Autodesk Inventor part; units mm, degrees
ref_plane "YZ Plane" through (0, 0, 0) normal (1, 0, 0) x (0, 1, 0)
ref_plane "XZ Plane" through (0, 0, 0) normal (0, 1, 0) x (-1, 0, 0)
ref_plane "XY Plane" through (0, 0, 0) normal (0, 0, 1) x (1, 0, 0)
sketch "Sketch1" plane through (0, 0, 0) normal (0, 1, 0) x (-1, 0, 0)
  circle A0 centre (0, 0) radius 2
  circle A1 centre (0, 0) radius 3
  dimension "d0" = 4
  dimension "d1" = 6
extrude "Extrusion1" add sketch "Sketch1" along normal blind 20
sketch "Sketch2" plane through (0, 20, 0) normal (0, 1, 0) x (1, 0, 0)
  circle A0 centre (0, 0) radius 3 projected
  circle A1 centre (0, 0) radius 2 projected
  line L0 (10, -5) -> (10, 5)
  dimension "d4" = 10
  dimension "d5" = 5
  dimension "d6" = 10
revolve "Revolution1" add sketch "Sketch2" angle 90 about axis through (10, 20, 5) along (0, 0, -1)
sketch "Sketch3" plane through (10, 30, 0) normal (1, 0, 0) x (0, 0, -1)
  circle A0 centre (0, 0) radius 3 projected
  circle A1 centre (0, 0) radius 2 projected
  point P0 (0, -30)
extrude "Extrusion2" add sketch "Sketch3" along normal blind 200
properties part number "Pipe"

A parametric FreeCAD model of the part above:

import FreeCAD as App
import Part
import Sketcher
from FreeCAD import Vector
Q = App.Units.Quantity

doc = App.newDocument("Part")
body = doc.addObject("PartDesign::Body", "Body")

sketch1 = body.newObject("Sketcher::SketchObject", "Sketch")
sketch1.AttachmentSupport = (doc.getObject("XZ_Plane"), [""])
sketch1.MapMode = "FlatFace"
sketch1.addGeometry(Part.Circle(Vector(0, 0, 0), Vector(0, 0, 1), 3), False)
sketch1.addGeometry(Part.Circle(Vector(0, 0, 0), Vector(0, 0, 1), 2), False)
sketch1.addConstraint(Sketcher.Constraint("Coincident", 0, 3, -1, 1))
sketch1.addConstraint(Sketcher.Constraint("Coincident", 1, 3, -1, 1))
sketch1.addConstraint(Sketcher.Constraint("Diameter", 0, Q("6 mm")))
sketch1.addConstraint(Sketcher.Constraint("Diameter", 1, Q("4 mm")))
pad1 = body.newObject("PartDesign::Pad", "Pad")
pad1.Profile = sketch1
pad1.Length = 20
pad1.Reversed = True

sketch2 = body.newObject("Sketcher::SketchObject", "Sketch001")
sketch2.AttachmentSupport = (doc.getObject("XZ_Plane"), [""])
sketch2.MapMode = "FlatFace"
sketch2.AttachmentOffset = App.Placement(Vector(0, 0, -20), App.Rotation())
sketch2.addGeometry(Part.Circle(Vector(0, 0, 0), Vector(0, 0, 1), 3), False)
sketch2.addGeometry(Part.Circle(Vector(0, 0, 0), Vector(0, 0, 1), 2), False)
sketch2.addGeometry(Part.LineSegment(Vector(10, 0, 0), Vector(10, -10, 0)), True)
sketch2.addConstraint(Sketcher.Constraint("Vertical", 2))
sketch2.addConstraint(Sketcher.Constraint("Coincident", 0, 3, -1, 1))
sketch2.addConstraint(Sketcher.Constraint("Coincident", 1, 3, -1, 1))
sketch2.addConstraint(Sketcher.Constraint("PointOnObject", 2, 1, -1))
sketch2.addConstraint(Sketcher.Constraint("DistanceY", 2, 2, 2, 1, Q("10 mm")))
sketch2.addConstraint(Sketcher.Constraint("Diameter", 0, Q("6 mm")))
sketch2.addConstraint(Sketcher.Constraint("Diameter", 1, Q("4 mm")))
sketch2.addConstraint(Sketcher.Constraint("DistanceX", -1, 1, 2, 1, Q("10 mm")))
revolution = body.newObject("PartDesign::Revolution", "Revolution")
revolution.Profile = sketch2
revolution.ReferenceAxis = (sketch2, ["Axis0"])
revolution.Angle = 90

sketch3 = body.newObject("Sketcher::SketchObject", "Sketch002")
sketch3.AttachmentSupport = (doc.getObject("YZ_Plane"), [""])
sketch3.MapMode = "FlatFace"
sketch3.AttachmentOffset = App.Placement(Vector(0, 0, 10), App.Rotation())
sketch3.addGeometry(Part.Circle(Vector(30, 0, 0), Vector(0, 0, 1), 3), False)
sketch3.addGeometry(Part.Circle(Vector(30, 0, 0), Vector(0, 0, 1), 2), False)
sketch3.addConstraint(Sketcher.Constraint("Coincident", 1, 3, 0, 3))
sketch3.addConstraint(Sketcher.Constraint("PointOnObject", 0, 3, -1))
sketch3.addConstraint(Sketcher.Constraint("Diameter", 0, Q("6 mm")))
sketch3.addConstraint(Sketcher.Constraint("Diameter", 1, Q("4 mm")))
sketch3.addConstraint(Sketcher.Constraint("DistanceX", -1, 1, 0, 3, Q("30 mm")))
pad2 = body.newObject("PartDesign::Pad", "Pad001")
pad2.Profile = sketch3
pad2.Length = 200

doc.recompute()
